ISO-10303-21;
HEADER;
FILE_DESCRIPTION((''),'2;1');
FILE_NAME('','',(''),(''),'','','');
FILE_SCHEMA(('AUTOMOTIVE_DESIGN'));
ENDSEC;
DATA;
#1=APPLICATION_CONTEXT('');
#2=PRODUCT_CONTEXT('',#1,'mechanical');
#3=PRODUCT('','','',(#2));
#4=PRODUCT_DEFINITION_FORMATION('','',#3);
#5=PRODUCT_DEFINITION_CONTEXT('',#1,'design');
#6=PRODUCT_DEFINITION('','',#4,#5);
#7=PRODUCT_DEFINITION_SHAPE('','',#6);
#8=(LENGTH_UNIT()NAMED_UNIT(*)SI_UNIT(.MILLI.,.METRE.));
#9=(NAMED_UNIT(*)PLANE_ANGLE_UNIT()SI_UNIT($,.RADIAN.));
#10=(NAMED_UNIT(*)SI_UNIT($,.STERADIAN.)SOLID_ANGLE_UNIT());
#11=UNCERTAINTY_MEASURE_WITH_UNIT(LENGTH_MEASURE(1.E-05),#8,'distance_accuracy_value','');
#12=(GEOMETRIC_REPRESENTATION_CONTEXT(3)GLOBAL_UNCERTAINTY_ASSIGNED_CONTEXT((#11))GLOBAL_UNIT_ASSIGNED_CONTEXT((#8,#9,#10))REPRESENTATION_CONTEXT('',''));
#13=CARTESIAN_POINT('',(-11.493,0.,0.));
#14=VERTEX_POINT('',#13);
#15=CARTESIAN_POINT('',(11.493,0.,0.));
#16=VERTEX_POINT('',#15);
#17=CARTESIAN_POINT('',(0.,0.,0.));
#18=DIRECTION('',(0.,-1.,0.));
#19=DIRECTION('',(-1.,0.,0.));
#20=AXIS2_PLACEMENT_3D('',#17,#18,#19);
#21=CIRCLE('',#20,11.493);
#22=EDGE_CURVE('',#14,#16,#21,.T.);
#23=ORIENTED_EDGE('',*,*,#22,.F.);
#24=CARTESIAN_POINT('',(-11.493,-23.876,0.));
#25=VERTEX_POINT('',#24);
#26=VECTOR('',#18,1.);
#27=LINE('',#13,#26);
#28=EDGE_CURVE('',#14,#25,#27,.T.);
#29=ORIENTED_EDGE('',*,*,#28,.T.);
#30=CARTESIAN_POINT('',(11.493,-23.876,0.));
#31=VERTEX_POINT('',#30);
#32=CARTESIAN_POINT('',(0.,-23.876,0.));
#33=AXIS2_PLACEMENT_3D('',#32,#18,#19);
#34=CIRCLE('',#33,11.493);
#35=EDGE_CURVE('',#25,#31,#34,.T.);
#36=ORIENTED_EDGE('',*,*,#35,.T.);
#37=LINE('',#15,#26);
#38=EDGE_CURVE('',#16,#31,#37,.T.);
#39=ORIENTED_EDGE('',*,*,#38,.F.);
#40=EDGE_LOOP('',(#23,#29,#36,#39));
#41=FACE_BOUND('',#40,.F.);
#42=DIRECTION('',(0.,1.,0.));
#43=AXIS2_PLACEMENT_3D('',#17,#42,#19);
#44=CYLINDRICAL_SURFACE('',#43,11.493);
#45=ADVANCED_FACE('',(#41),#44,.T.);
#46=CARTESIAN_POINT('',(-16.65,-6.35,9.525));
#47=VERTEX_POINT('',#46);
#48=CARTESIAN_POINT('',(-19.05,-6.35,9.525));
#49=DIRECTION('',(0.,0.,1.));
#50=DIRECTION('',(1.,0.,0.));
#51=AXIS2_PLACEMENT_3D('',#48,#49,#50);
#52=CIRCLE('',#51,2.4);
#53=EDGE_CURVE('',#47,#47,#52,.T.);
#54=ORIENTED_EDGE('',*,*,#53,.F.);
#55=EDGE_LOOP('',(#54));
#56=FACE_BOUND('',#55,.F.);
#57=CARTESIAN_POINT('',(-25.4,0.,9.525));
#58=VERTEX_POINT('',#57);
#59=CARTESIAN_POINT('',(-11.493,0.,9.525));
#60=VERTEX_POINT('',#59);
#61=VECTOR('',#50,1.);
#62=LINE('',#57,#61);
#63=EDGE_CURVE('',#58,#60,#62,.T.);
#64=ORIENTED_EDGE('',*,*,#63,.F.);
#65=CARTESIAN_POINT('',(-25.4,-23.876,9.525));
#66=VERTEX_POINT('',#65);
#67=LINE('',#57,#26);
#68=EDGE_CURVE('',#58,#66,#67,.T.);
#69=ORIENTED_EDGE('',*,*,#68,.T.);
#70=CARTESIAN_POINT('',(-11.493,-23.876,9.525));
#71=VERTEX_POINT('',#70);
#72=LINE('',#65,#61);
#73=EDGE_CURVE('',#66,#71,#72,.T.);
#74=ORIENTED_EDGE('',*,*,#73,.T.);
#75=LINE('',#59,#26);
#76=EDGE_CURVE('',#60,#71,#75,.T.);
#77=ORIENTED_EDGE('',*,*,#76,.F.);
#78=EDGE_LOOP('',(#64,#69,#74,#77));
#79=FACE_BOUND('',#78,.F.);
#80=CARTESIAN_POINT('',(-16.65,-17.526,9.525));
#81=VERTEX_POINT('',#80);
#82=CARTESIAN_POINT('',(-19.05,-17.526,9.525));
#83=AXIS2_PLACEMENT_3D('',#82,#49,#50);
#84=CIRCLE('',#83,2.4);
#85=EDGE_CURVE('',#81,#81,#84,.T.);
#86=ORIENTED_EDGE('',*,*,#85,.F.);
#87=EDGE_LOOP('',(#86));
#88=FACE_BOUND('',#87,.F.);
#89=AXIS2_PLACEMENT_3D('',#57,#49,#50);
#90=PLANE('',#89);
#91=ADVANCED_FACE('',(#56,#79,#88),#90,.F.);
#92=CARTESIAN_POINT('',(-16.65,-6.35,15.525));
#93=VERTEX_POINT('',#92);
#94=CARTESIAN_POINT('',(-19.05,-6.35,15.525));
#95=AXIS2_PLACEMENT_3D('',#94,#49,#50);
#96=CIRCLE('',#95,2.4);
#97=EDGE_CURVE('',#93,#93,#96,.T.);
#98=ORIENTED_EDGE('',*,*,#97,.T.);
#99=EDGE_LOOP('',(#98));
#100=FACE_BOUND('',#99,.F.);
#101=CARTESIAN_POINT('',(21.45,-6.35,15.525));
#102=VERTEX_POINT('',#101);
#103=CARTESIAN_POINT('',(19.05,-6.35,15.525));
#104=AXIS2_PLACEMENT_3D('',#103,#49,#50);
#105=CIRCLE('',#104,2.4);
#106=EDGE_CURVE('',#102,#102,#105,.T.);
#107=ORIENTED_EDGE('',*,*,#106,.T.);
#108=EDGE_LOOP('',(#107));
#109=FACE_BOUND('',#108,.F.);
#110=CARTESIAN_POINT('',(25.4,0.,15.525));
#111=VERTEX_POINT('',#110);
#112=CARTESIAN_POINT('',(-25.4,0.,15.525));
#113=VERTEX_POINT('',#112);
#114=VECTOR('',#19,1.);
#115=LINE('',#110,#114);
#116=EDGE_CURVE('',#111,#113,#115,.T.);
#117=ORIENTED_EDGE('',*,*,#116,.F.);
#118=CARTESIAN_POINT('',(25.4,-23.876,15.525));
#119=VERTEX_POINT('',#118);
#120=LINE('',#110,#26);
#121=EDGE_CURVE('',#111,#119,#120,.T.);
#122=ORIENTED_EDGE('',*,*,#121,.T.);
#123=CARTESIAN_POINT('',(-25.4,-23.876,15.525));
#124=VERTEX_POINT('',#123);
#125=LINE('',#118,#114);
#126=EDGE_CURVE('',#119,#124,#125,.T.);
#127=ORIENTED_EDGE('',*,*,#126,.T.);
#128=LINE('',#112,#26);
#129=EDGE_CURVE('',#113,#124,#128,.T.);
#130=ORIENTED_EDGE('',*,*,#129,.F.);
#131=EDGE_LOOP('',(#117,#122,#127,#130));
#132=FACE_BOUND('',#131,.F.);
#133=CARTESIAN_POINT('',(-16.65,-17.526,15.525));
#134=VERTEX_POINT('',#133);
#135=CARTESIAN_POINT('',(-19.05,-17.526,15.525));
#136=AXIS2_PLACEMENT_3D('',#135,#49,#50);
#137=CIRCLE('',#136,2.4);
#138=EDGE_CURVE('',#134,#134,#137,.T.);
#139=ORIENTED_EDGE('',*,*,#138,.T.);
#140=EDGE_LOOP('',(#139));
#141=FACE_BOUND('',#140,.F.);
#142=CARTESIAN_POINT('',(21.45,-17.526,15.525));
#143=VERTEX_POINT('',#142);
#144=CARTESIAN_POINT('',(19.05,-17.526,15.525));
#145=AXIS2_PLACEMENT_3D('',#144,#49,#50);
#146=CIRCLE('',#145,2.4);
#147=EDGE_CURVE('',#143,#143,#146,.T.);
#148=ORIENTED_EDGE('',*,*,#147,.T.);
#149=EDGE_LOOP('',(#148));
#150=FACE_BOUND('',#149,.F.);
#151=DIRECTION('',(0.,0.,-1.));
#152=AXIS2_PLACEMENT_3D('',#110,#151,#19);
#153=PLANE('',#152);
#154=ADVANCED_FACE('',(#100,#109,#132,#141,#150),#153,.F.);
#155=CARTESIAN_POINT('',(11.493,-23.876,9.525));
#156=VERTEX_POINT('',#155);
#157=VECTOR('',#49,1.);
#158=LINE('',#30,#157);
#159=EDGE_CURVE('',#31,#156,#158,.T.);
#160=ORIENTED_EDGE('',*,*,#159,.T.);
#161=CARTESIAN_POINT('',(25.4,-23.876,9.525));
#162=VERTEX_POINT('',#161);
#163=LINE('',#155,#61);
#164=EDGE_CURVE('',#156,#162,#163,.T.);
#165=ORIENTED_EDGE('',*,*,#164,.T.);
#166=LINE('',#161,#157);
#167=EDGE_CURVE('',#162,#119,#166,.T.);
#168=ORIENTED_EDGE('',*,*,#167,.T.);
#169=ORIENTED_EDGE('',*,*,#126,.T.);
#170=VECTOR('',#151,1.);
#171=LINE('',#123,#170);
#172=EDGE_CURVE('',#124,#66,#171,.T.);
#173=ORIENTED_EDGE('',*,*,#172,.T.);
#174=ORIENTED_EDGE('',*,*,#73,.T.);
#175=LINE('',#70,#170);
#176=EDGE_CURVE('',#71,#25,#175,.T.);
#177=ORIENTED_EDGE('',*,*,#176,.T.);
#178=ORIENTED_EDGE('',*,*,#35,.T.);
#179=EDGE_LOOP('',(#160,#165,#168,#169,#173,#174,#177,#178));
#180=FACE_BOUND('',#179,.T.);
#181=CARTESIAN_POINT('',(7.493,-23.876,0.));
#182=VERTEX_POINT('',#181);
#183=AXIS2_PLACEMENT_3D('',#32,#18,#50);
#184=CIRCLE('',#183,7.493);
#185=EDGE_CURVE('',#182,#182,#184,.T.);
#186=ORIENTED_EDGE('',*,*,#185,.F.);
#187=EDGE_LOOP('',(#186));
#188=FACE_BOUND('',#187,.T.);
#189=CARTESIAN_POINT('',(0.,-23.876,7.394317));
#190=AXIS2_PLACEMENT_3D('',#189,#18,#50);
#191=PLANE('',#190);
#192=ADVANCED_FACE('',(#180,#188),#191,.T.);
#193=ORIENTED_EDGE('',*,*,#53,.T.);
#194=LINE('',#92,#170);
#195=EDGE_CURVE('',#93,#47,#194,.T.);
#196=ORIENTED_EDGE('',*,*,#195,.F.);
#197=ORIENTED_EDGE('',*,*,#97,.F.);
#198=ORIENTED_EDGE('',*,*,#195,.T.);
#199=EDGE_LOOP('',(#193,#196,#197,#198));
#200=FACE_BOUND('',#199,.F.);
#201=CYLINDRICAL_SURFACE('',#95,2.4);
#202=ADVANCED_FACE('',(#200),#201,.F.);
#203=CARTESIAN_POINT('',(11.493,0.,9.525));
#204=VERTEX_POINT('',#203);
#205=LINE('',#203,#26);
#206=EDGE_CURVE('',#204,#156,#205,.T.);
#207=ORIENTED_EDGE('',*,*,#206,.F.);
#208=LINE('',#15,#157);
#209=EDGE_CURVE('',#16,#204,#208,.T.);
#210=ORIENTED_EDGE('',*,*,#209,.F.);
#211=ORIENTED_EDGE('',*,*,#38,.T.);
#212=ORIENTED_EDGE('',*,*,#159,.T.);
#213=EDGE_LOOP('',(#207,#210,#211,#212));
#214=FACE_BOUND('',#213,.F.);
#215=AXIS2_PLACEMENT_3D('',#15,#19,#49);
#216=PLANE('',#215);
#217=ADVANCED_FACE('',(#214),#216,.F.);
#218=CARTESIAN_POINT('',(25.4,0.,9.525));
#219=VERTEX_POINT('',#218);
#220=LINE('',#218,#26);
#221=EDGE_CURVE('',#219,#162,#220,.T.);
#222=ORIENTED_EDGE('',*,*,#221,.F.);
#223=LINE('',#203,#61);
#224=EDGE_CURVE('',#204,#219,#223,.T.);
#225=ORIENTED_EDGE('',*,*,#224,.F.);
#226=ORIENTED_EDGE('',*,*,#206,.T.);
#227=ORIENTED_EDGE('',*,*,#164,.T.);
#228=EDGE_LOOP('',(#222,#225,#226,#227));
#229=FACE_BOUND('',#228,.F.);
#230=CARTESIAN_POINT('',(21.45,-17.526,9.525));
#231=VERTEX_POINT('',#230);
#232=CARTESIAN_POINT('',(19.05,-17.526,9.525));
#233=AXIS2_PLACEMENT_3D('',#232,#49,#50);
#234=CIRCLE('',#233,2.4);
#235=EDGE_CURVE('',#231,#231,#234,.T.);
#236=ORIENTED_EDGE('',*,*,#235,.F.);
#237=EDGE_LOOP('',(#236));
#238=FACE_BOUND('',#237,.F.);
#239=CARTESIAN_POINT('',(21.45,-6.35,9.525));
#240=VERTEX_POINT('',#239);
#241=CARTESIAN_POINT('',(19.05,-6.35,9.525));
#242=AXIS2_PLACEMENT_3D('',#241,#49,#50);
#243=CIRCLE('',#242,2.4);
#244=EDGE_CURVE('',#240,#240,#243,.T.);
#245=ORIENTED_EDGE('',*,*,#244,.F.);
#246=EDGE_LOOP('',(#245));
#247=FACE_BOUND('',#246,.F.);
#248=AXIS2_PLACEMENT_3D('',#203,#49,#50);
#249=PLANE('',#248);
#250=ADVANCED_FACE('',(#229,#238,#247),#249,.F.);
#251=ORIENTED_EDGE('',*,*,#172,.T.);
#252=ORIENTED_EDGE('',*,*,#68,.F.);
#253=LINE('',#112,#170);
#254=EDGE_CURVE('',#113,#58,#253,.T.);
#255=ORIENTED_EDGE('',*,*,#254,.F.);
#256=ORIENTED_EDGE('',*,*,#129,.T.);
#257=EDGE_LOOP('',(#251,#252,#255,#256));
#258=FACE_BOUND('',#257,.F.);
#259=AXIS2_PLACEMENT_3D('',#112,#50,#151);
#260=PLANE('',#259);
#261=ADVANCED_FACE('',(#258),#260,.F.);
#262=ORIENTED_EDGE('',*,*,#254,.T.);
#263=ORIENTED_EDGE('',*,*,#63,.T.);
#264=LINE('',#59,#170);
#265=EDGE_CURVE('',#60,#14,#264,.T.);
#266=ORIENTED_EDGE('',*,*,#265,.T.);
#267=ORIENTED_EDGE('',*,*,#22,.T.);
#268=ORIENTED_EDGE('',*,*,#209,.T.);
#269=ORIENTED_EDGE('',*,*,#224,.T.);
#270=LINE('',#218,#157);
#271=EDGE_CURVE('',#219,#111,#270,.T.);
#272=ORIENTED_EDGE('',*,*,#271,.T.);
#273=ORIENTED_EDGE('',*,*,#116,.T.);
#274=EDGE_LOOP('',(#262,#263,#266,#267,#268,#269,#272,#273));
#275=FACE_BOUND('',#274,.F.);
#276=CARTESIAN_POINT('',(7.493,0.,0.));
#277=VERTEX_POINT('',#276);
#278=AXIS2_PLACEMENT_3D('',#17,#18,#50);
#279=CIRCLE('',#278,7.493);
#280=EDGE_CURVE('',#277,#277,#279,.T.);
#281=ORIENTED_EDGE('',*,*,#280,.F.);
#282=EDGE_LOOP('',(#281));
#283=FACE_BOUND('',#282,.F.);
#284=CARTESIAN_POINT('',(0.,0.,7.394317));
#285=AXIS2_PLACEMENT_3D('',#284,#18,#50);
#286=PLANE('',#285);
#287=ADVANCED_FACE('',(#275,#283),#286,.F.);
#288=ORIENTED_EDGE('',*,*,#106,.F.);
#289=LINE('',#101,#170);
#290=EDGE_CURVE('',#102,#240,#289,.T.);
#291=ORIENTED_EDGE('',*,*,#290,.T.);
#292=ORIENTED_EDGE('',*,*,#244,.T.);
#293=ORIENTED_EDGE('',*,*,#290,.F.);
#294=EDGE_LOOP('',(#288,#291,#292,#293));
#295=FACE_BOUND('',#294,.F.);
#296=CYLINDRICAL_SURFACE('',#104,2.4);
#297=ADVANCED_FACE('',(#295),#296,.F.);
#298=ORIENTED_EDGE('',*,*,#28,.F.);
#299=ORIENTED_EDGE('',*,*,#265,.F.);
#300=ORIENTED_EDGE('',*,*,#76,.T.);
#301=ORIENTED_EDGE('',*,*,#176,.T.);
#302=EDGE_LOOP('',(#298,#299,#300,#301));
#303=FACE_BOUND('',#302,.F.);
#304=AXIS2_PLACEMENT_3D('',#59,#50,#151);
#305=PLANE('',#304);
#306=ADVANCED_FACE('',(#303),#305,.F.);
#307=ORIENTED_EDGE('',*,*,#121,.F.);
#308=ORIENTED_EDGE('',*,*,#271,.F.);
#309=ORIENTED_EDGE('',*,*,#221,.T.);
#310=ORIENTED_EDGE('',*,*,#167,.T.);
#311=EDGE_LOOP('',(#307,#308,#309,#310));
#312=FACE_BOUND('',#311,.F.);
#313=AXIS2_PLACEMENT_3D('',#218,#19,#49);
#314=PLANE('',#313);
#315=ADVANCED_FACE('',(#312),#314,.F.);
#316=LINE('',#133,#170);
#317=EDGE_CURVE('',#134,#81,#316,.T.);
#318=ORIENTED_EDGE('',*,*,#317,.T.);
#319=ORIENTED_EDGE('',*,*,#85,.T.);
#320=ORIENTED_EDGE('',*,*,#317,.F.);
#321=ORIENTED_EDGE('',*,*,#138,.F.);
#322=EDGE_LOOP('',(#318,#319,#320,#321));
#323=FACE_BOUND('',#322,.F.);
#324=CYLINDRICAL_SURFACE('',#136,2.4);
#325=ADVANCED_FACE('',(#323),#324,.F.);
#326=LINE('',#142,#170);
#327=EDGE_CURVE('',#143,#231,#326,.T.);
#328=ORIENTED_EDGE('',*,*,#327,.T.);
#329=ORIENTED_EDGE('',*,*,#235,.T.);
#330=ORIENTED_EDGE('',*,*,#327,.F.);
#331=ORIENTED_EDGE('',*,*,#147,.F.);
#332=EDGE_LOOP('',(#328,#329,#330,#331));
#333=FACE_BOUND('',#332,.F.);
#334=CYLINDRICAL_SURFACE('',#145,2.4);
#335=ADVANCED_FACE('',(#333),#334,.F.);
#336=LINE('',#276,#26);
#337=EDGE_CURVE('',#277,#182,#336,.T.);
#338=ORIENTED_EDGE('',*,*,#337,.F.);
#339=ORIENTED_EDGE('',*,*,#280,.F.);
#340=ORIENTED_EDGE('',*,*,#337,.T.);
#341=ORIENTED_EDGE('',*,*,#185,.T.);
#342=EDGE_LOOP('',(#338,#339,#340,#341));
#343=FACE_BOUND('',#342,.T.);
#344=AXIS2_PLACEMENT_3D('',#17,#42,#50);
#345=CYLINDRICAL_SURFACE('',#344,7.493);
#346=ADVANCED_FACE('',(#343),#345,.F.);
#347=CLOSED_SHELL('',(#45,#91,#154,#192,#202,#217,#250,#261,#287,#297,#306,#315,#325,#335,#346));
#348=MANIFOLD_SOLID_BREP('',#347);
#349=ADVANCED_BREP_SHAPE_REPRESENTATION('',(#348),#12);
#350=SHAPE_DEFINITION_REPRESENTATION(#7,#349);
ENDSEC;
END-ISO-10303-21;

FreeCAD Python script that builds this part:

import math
import FreeCAD as App
import Part
import Sketcher
Q = App.Units.Quantity

doc = App.newDocument("Part")
body = doc.addObject("PartDesign::Body", "Body")

sketch1 = body.newObject("Sketcher::SketchObject", "Sketch")
sketch1.AttachmentSupport = (doc.getObject("XZ_Plane"), [""])
sketch1.MapMode = "FlatFace"
sketch1.addGeometry([
    Part.LineSegment(App.Vector(25, 16, 0), App.Vector(-25, 16, 0)),
    Part.LineSegment(App.Vector(-25, 16, 0), App.Vector(-25, 10, 0)),
    Part.LineSegment(App.Vector(-25, 10, 0), App.Vector(-11, 10, 0)),
    Part.LineSegment(App.Vector(-11, 10, 0), App.Vector(-11, 0, 0)),
    Part.ArcOfCircle(Part.Circle(App.Vector(0, 0, 0), App.Vector(0, 0, 1), 11), math.radians(180), math.radians(360)),
    Part.LineSegment(App.Vector(11, 0, 0), App.Vector(11, 10, 0)),
    Part.LineSegment(App.Vector(11, 10, 0), App.Vector(25, 10, 0)),
    Part.LineSegment(App.Vector(25, 10, 0), App.Vector(25, 16, 0)),
    Part.Circle(App.Vector(0, 0, 0), App.Vector(0, 0, 1), 7),
], False)
sketch1.addConstraint([
    Sketcher.Constraint("Coincident", 0, 2, 1, 1),
    Sketcher.Constraint("Coincident", 1, 2, 2, 1),
    Sketcher.Constraint("Coincident", 2, 2, 3, 1),
    Sketcher.Constraint("Tangent", 3, 2, 4, 1),
    Sketcher.Constraint("Tangent", 4, 2, 5, 1),
    Sketcher.Constraint("Coincident", 5, 2, 6, 1),
    Sketcher.Constraint("Coincident", 6, 2, 7, 1),
    Sketcher.Constraint("Coincident", 7, 2, 0, 1),
    Sketcher.Constraint("Horizontal", 0),
    Sketcher.Constraint("Vertical", 1),
    Sketcher.Constraint("Horizontal", 2),
    Sketcher.Constraint("Vertical", 3),
    Sketcher.Constraint("Vertical", 5),
    Sketcher.Constraint("Horizontal", 6),
    Sketcher.Constraint("Vertical", 7),
    Sketcher.Constraint("Coincident", 4, 3, -1, 1),
    Sketcher.Constraint("Coincident", 8, 3, -1, 1),
    Sketcher.Constraint("Symmetric", 1, 2, 6, 2, -2),
    Sketcher.Constraint("Diameter", 8, Q("0.59 in")),
    Sketcher.Constraint("DistanceX", 0, 2, 0, 1, Q("2 in")),
    Sketcher.Constraint("DistanceY", 3, 2, 3, 1, Q("0.375 in")),
    Sketcher.Constraint("Radius", 4, 11.493),
    Sketcher.Constraint("DistanceY", 1, 2, 1, 1, 6.0),
])
pad1 = body.newObject("PartDesign::Pad", "Pad")
pad1.Profile = sketch1
pad1.Length = Q("0.94 in")

sketch2 = body.newObject("Sketcher::SketchObject", "Sketch001")
sketch2.AttachmentSupport = (doc.getObject("XY_Plane"), [""])
sketch2.MapMode = "FlatFace"
sketch2.AttachmentOffset = App.Placement(App.Vector(0, 0, 15.525), App.Rotation())
sketch2.addGeometry([
    Part.Circle(App.Vector(-19.1, -6.3, 0), App.Vector(0, 0, 1), 2.4),
    Part.Circle(App.Vector(-19.1, -17.5, 0), App.Vector(0, 0, 1), 2.4),
    Part.Circle(App.Vector(19.1, -17.5, 0), App.Vector(0, 0, 1), 2.4),
    Part.Circle(App.Vector(19.1, -6.3, 0), App.Vector(0, 0, 1), 2.4),
], False)
sketch2.addConstraint([
    Sketcher.Constraint("Equal", 0, 1),
    Sketcher.Constraint("Equal", 1, 2),
    Sketcher.Constraint("Equal", 2, 3),
    Sketcher.Constraint("Symmetric", 1, 3, 2, 3, -2),
    Sketcher.Constraint("Symmetric", 0, 3, 3, 3, -2),
    Sketcher.Constraint("Vertical", 0, 3, 1, 3),
    Sketcher.Constraint("DistanceX", 1, 3, 2, 3, Q("1.5 in")),
    Sketcher.Constraint("Diameter", 0, 4.8),
    Sketcher.Constraint("DistanceY", 0, 3, -1, 1, Q("0.25 in")),
    Sketcher.Constraint("DistanceY", 1, 3, -1, 1, Q("0.69 in")),
])
pocket1 = body.newObject("PartDesign::Pocket", "Pocket")
pocket1.Profile = sketch2
pocket1.Type = "ThroughAll"

doc.recompute()
